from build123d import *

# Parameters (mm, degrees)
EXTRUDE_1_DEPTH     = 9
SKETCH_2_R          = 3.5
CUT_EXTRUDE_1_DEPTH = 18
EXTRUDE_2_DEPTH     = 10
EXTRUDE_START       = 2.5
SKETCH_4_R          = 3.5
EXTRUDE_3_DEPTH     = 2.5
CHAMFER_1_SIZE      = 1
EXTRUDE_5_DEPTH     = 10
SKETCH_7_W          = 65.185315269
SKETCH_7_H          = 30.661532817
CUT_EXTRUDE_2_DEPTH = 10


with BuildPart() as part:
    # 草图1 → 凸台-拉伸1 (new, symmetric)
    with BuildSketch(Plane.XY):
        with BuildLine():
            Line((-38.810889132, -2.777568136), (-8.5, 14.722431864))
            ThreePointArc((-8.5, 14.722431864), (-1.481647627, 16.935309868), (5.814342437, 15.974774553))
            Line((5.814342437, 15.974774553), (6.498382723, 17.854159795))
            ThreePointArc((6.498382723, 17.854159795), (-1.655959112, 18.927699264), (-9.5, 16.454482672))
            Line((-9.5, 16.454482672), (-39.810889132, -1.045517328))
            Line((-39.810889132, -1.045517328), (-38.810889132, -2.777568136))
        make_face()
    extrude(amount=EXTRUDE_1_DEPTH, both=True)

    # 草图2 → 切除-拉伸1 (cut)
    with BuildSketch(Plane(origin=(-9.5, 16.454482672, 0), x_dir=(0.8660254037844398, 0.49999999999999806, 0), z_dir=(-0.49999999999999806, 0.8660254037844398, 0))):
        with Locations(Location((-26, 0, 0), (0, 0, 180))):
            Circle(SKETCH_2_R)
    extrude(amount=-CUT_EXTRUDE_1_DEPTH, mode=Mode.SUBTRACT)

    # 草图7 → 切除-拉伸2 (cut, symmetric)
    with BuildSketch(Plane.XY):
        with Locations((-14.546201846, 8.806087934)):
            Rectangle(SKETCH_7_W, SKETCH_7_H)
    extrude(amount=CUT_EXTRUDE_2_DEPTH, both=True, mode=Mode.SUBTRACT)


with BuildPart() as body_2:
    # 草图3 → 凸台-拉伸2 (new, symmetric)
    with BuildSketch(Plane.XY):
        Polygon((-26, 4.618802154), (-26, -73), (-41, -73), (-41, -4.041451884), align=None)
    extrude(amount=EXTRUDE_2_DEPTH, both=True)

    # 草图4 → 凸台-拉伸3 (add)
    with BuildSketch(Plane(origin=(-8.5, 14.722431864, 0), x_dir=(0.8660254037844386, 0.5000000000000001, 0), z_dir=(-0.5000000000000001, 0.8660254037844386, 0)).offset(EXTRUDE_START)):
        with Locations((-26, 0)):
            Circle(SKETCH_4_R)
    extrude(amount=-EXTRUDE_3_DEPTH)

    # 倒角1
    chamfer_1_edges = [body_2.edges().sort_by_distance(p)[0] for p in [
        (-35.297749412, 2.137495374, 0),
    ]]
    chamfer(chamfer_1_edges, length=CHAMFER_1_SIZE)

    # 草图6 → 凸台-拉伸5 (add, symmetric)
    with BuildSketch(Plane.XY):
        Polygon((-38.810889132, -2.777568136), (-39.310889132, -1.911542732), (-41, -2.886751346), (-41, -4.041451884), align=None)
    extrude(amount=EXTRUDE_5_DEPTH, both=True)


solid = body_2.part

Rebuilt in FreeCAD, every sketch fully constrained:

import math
import FreeCAD as App
import Part
import Sketcher
from FreeCAD import Vector
Q = App.Units.Quantity


def edges_at(feature, points):
    """Names of the edges that pass closest to the given points."""
    edges = feature.Shape.Edges
    near = lambda p: min(range(len(edges)), key=lambda i: edges[i].distToShape(Part.Vertex(*p))[0])
    return sorted({f"Edge{near(p) + 1}" for p in points})


def add_polygon(sketch, points):
    """Adds a closed chain of lines whose ends are joined by coincident constraints."""
    first, n = sketch.GeometryCount, len(points)
    for a, b in zip(points, points[1:] + points[:1]):
        sketch.addGeometry(Part.LineSegment(App.Vector(*a, 0), App.Vector(*b, 0)), False)
    for i in range(n):
        sketch.addConstraint(Sketcher.Constraint("Coincident", first + i, 2, first + (i + 1) % n, 1))

doc = App.newDocument("Part")
body = doc.addObject("PartDesign::Body", "Body")

# Sketch on XY plane
sketch1 = doc.addObject("Sketcher::SketchObject", "Sketch")
body.addObject(sketch1)
sketch1.AttachmentSupport = (doc.XY_Plane, [""])
sketch1.MapMode = "FlatFace"
sketch1.addGeometry([
    Part.LineSegment(Vector(-38.8, -2.8, 0), Vector(-8.5, 14.7, 0)),  # 0
    Part.ArcOfCircle(Part.Circle(Vector(0, 0, 0), Vector(0, 0, 1), 17), math.radians(70), math.radians(120)),  # 1
    Part.LineSegment(Vector(5.8, 16, 0), Vector(6.5, 17.9, 0)),  # 2
    Part.ArcOfCircle(Part.Circle(Vector(0, 0, 0), Vector(0, 0, 1), 19), math.radians(70), math.radians(120)),  # 3
    Part.LineSegment(Vector(-9.5, 16.5, 0), Vector(-39.8, -1, 0)),  # 4
    Part.LineSegment(Vector(-39.8, -1, 0), Vector(-38.8, -2.8, 0)),  # 5
], False)
sketch1.addConstraint([
    Sketcher.Constraint("Tangent", 0, 2, 1, 2),
    Sketcher.Constraint("Coincident", 1, 1, 2, 1),
    Sketcher.Constraint("Coincident", 2, 2, 3, 1),
    Sketcher.Constraint("Tangent", 3, 2, 4, 1),
    Sketcher.Constraint("Coincident", 4, 2, 5, 1),
    Sketcher.Constraint("Coincident", 5, 2, 0, 1),
    Sketcher.Constraint("Coincident", 1, 3, -1, 1),
    Sketcher.Constraint("Coincident", 3, 3, -1, 1),
    Sketcher.Constraint("Parallel", 0, 4),
    Sketcher.Constraint("Perpendicular", 4, 5),
    Sketcher.Constraint("Radius", 1, 17.0),
    Sketcher.Constraint("Radius", 3, 19.0),
    Sketcher.Constraint("Angle", 0, Q("30 deg")),
    Sketcher.Constraint("Angle", 2, Q("70 deg")),
    Sketcher.Constraint("Distance", 0, 35.0),
    Sketcher.Constraint("DistanceY", -1, 1, 2, 2, 17.85416),
])
pad1 = doc.addObject("PartDesign::Pad", "Pad")
body.addObject(pad1)
pad1.Profile = sketch1
pad1.Length = 18
pad1.Midplane = True

# Sketch on an angled plane
sketch2 = doc.addObject("Sketcher::SketchObject", "Sketch001")
body.addObject(sketch2)
sketch2.Placement = App.Placement(Vector(-9.5, 16.454483, 0), App.Rotation(Vector(0.866025404, 0.5, 0), Vector(0, 0, -1), Vector(-0.5, 0.866025404, 0), "ZXY"))
sketch2.addGeometry(Part.Circle(Vector(-26, 0, 0), Vector(0, 0, 1), 3.5), False)
sketch2.addConstraint([
    Sketcher.Constraint("PointOnObject", 0, 3, -1),
    Sketcher.Constraint("Diameter", 0, 7.0),
    Sketcher.Constraint("DistanceX", 0, 3, -1, 1, 26.0),
])
pocket1 = doc.addObject("PartDesign::Pocket", "Pocket")
body.addObject(pocket1)
pocket1.Profile = sketch2
pocket1.Length = 18

# Sketch on XY plane
sketch3 = doc.addObject("Sketcher::SketchObject", "Sketch002")
body.addObject(sketch3)
sketch3.AttachmentSupport = (doc.XY_Plane, [""])
sketch3.MapMode = "FlatFace"
add_polygon(sketch3, [(-47, 24), (-47, -7), (18, -7), (18, 24)])  # lines 0-3
sketch3.addConstraint([
    Sketcher.Constraint("Vertical", 0),
    Sketcher.Constraint("Horizontal", 1),
    Sketcher.Constraint("Vertical", 2),
    Sketcher.Constraint("Horizontal", 3),
    Sketcher.Constraint("DistanceX", 1, 1, 1, 2, 65.185315),
    Sketcher.Constraint("DistanceY", 0, 2, 0, 1, 30.661533),
    Sketcher.Constraint("DistanceX", 0, 2, -1, 1, 47.138859),
    Sketcher.Constraint("DistanceY", 0, 2, -1, 1, 6.524678),
])
pocket2 = doc.addObject("PartDesign::Pocket", "Pocket001")
body.addObject(pocket2)
pocket2.Profile = sketch3
pocket2.Length = 20
pocket2.Midplane = True
body2 = doc.addObject("PartDesign::Body", "Body001")

# Sketch on XY plane
sketch4 = doc.addObject("Sketcher::SketchObject", "Sketch003")
body2.addObject(sketch4)
sketch4.AttachmentSupport = (doc.getObject("XY_Plane001"), [""])
sketch4.MapMode = "FlatFace"
add_polygon(sketch4, [(-26, -73), (-26, 5), (-41, -4), (-41, -73)])  # lines 0-3
sketch4.addConstraint([
    Sketcher.Constraint("Vertical", 0),
    Sketcher.Constraint("Vertical", 2),
    Sketcher.Constraint("Horizontal", 3),
    Sketcher.Constraint("DistanceX", 3, 1, 3, 2, 15.0),
    Sketcher.Constraint("Angle", 1, Q("-150 deg")),
    Sketcher.Constraint("DistanceX", 0, 2, -1, 1, 26.0),
    Sketcher.Constraint("DistanceY", 2, 2, -1, 1, 73.0),
    Sketcher.Constraint("DistanceY", 2, 2, 2, 1, 68.958548),
])
pad2 = doc.addObject("PartDesign::Pad", "Pad001")
body2.addObject(pad2)
pad2.Profile = sketch4
pad2.Length = 20
pad2.Midplane = True

# Sketch on an angled plane
sketch5 = doc.addObject("Sketcher::SketchObject", "Sketch004")
body2.addObject(sketch5)
sketch5.Placement = App.Placement(Vector(-9.75, 16.887495, 0), App.Rotation(Vector(0.866025404, 0.5, 0), Vector(0, 0, -1), Vector(-0.5, 0.866025404, 0), "ZXY"))
sketch5.addGeometry(Part.Circle(Vector(-26, 0, 0), Vector(0, 0, 1), 3.5), False)
sketch5.addConstraint([
    Sketcher.Constraint("PointOnObject", 0, 3, -1),
    Sketcher.Constraint("Diameter", 0, 7.0),
    Sketcher.Constraint("DistanceX", 0, 3, -1, 1, 26.0),
])
pad3 = doc.addObject("PartDesign::Pad", "Pad002")
body2.addObject(pad3)
pad3.Profile = sketch5
pad3.Length = 2.5
pad3.Reversed = True
doc.recompute()

chamfer = doc.addObject("PartDesign::Chamfer", "Chamfer")
body2.addObject(chamfer)
chamfer.Base = (pad3, edges_at(pad3, [(-35.298, 2.137, 0)]))
chamfer.Size = 1

# Sketch on XY plane
sketch6 = doc.addObject("Sketcher::SketchObject", "Sketch005")
body2.addObject(sketch6)
sketch6.AttachmentSupport = (doc.getObject("XY_Plane001"), [""])
sketch6.MapMode = "FlatFace"
add_polygon(sketch6, [(-38.8, -2.8), (-39.3, -1.9), (-41, -2.9), (-41, -4)])  # lines 0-3
sketch6.addConstraint([
    Sketcher.Constraint("Vertical", 2),
    Sketcher.Constraint("Perpendicular", 0, 1),
    Sketcher.Constraint("Parallel", 1, 3),
    Sketcher.Constraint("Angle", 0, Q("120 deg")),
    Sketcher.Constraint("Distance", 0, 1.0),
    Sketcher.Constraint("DistanceX", 1, 2, -1, 1, 41.0),
    Sketcher.Constraint("DistanceX", 0, 2, -1, 1, 39.310889),
    Sketcher.Constraint("DistanceY", 1, 2, -1, 1, 2.886751),
])
pad4 = doc.addObject("PartDesign::Pad", "Pad003")
body2.addObject(pad4)
pad4.Profile = sketch6
pad4.Length = 20
pad4.Midplane = True

doc.recompute()
